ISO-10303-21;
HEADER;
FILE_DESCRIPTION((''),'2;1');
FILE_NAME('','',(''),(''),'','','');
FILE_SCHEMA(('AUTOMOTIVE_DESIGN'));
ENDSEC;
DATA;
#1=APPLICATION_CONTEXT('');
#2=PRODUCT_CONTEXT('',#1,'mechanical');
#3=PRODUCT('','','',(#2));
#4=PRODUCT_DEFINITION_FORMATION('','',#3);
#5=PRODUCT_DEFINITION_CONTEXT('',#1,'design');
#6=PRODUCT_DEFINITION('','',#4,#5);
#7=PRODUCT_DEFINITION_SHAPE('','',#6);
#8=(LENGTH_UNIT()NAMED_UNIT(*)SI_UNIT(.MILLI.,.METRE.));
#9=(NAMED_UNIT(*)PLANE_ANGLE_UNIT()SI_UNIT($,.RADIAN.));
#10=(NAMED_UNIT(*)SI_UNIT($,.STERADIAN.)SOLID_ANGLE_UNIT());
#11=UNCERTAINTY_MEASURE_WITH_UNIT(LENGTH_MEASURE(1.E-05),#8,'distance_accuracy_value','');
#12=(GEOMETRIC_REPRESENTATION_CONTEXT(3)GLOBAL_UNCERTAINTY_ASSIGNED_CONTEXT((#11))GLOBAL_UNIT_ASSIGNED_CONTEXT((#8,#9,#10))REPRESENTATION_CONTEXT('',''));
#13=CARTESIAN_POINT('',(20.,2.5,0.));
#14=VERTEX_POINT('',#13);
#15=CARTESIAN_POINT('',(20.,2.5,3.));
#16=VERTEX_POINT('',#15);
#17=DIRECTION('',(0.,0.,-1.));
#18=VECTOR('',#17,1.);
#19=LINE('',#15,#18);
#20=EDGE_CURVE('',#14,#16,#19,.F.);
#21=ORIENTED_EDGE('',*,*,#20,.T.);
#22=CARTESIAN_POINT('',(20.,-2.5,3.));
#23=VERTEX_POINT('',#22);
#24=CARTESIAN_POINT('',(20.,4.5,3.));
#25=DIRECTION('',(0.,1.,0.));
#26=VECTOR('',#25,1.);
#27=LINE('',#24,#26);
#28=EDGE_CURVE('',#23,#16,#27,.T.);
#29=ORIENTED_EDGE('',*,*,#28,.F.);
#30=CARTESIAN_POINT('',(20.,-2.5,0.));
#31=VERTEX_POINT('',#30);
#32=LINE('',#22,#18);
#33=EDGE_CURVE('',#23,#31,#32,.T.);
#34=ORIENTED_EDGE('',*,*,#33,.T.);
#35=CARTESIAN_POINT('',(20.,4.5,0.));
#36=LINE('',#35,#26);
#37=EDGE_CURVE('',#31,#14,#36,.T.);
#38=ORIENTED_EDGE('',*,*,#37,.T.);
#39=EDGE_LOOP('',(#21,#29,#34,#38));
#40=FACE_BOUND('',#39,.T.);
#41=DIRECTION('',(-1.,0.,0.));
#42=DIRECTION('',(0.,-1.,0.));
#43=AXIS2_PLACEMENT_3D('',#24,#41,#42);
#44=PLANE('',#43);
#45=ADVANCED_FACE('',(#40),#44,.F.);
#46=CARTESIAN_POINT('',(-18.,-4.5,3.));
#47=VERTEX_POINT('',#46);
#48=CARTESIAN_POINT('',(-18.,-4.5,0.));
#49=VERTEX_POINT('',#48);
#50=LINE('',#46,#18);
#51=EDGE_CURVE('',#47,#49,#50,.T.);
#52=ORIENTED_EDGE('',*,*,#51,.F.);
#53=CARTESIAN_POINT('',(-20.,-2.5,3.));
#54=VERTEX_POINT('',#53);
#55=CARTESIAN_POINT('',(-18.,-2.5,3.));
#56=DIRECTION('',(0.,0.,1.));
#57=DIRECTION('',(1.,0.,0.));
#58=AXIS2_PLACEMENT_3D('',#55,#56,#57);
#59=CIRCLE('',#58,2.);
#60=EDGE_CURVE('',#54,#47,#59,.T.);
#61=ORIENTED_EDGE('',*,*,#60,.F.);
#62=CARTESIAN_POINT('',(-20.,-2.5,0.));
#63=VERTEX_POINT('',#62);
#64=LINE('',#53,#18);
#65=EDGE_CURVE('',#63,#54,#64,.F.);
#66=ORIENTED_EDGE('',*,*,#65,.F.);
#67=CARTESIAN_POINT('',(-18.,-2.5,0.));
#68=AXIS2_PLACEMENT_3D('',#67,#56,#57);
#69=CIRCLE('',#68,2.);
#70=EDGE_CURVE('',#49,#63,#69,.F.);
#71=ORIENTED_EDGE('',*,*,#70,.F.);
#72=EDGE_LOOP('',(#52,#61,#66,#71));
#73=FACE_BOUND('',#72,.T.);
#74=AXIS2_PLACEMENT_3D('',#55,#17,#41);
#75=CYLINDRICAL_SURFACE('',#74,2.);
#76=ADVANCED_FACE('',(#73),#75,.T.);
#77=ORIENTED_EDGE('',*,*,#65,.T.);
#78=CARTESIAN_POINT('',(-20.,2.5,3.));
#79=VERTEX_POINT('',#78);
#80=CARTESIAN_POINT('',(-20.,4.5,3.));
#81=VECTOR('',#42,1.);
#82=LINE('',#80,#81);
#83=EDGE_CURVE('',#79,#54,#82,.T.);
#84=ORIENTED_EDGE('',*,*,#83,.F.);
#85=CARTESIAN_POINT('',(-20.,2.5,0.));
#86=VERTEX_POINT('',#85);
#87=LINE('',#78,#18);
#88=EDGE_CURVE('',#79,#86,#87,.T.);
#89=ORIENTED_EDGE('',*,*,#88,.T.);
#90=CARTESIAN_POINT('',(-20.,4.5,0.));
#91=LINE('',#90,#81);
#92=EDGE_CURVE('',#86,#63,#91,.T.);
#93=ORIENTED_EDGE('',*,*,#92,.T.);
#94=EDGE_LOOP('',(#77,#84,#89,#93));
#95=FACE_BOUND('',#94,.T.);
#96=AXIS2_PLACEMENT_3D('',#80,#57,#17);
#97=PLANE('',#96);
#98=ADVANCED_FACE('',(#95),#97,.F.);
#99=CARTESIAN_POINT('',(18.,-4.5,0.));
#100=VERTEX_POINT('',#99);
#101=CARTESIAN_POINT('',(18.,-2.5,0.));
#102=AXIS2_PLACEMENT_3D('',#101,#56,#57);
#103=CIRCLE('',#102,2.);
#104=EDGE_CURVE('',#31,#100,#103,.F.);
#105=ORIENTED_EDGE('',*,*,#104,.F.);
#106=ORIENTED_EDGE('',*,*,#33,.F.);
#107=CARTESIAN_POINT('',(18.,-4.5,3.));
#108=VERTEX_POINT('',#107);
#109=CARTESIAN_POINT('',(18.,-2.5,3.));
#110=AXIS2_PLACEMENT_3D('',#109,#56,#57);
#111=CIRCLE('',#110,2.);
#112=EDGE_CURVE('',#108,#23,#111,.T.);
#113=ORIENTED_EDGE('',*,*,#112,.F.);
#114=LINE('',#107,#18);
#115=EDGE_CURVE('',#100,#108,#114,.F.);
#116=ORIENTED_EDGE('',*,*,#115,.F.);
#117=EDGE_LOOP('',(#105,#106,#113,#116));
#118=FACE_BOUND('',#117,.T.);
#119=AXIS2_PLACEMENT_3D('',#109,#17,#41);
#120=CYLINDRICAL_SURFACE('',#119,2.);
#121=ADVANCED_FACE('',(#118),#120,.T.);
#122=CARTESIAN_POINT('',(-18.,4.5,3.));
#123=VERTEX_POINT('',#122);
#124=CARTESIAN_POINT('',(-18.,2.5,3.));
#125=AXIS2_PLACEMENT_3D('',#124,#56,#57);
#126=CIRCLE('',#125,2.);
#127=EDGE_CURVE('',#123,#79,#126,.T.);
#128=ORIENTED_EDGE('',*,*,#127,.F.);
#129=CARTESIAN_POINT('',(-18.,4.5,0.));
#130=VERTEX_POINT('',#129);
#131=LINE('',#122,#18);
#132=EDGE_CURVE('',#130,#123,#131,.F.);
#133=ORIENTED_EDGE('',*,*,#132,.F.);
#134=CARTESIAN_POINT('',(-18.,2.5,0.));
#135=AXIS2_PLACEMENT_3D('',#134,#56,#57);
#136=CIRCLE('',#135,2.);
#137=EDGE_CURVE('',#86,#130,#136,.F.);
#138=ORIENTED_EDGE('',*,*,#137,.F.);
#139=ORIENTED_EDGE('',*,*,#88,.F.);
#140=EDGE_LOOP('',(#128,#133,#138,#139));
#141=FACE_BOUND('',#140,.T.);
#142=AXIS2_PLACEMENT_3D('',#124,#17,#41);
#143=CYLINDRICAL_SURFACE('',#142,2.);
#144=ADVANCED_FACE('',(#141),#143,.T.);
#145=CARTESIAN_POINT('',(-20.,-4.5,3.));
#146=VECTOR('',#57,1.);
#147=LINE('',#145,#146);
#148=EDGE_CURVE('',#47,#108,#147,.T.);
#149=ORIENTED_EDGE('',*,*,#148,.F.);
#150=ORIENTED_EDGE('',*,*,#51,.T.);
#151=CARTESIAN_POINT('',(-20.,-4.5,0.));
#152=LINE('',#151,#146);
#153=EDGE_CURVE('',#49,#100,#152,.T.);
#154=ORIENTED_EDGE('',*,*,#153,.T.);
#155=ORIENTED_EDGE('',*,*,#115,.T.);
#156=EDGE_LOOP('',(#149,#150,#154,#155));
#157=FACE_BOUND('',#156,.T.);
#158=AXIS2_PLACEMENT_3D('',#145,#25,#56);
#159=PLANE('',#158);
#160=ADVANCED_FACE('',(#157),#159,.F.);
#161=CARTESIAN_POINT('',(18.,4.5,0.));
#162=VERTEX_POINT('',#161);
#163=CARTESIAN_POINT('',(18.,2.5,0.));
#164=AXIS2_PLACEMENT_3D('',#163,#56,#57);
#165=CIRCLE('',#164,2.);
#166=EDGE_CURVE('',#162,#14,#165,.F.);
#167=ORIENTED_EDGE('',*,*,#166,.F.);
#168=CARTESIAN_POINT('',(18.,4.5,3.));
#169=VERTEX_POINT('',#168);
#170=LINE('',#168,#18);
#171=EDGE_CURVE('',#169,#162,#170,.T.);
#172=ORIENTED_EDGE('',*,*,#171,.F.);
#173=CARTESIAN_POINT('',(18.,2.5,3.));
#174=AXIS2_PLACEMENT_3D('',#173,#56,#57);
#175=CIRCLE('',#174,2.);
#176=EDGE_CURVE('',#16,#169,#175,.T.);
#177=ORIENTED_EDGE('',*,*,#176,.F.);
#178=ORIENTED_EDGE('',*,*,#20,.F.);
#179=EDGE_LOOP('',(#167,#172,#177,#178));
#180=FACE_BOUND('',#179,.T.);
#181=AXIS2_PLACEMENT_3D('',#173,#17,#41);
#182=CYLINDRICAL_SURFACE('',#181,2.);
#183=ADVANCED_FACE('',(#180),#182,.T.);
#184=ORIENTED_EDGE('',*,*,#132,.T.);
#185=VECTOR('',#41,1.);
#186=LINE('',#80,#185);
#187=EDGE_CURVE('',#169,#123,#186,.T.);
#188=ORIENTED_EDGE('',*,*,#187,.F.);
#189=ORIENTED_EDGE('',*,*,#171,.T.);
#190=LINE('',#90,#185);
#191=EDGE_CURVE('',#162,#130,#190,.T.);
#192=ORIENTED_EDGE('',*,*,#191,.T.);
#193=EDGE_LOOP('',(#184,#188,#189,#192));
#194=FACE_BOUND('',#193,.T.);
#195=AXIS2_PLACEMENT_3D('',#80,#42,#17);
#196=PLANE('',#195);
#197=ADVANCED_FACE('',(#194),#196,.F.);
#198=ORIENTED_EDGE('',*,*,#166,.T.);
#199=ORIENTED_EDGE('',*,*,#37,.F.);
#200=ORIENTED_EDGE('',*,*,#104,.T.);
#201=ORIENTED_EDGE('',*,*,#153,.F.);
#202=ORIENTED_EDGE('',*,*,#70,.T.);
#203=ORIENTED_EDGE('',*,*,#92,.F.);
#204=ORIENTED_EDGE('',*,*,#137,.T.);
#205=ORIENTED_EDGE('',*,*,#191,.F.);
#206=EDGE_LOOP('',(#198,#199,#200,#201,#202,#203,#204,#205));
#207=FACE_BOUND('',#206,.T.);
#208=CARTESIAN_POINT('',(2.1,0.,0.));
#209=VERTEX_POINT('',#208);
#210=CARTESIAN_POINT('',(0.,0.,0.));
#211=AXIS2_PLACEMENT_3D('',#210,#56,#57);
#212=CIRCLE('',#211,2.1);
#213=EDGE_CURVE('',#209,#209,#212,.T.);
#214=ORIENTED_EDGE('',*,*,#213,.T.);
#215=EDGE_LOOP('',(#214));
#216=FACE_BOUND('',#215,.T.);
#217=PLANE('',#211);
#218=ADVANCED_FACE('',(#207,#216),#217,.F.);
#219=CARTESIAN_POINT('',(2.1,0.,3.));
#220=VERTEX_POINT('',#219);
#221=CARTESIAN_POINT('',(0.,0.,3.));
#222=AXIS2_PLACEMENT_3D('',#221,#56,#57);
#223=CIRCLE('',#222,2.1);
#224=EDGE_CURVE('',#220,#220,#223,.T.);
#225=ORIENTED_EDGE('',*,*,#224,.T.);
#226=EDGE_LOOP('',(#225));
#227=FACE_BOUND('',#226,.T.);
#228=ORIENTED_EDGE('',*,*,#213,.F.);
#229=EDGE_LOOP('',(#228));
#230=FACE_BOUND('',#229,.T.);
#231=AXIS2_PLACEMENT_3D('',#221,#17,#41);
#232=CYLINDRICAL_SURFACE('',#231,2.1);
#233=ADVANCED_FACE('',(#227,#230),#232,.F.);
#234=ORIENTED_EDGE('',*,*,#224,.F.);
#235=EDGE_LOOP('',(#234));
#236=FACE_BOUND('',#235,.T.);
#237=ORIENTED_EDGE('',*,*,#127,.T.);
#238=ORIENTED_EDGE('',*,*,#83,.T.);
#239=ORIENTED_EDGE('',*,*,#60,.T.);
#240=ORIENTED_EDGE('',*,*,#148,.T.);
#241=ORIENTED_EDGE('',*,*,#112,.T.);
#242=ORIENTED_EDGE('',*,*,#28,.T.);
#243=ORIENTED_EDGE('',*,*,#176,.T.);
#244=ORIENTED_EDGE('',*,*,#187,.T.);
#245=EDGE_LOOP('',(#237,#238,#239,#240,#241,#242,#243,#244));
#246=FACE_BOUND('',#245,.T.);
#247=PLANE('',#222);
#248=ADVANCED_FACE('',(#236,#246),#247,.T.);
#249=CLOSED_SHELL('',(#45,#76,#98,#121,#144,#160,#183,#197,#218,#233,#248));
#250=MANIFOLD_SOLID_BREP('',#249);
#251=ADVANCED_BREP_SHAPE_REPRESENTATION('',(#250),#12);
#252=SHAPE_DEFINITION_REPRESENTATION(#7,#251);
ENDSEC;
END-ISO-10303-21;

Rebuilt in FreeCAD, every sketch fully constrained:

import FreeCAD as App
import Part
import Sketcher


def edges_at(feature, points):
    """Names of the edges that pass closest to the given points."""
    edges = feature.Shape.Edges
    near = lambda p: min(range(len(edges)), key=lambda i: edges[i].distToShape(Part.Vertex(*p))[0])
    return sorted({f"Edge{near(p) + 1}" for p in points})

doc = App.newDocument("Part")
body = doc.addObject("PartDesign::Body", "Body")

sketch1 = body.newObject("Sketcher::SketchObject", "Sketch")
sketch1.AttachmentSupport = (doc.getObject("XY_Plane"), [""])
sketch1.MapMode = "FlatFace"
sketch1.addGeometry([
    Part.LineSegment(App.Vector(-20, 4.5, 0), App.Vector(-20, -4.5, 0)),
    Part.LineSegment(App.Vector(-20, -4.5, 0), App.Vector(20, -4.5, 0)),
    Part.LineSegment(App.Vector(20, -4.5, 0), App.Vector(20, 4.5, 0)),
    Part.LineSegment(App.Vector(20, 4.5, 0), App.Vector(-20, 4.5, 0)),
    Part.Circle(App.Vector(0, 0, 0), App.Vector(0, 0, 1), 2.1),
], False)
sketch1.addConstraint([
    Sketcher.Constraint("Coincident", 0, 2, 1, 1),
    Sketcher.Constraint("Coincident", 1, 2, 2, 1),
    Sketcher.Constraint("Coincident", 2, 2, 3, 1),
    Sketcher.Constraint("Coincident", 3, 2, 0, 1),
    Sketcher.Constraint("Vertical", 0),
    Sketcher.Constraint("Horizontal", 1),
    Sketcher.Constraint("Vertical", 2),
    Sketcher.Constraint("Horizontal", 3),
    Sketcher.Constraint("Coincident", 4, 3, -1, 1),
    Sketcher.Constraint("Symmetric", 0, 2, 2, 2, -1, 1),
    Sketcher.Constraint("Diameter", 4, 4.2),
    Sketcher.Constraint("DistanceX", 1, 1, 1, 2, 40.0),
    Sketcher.Constraint("DistanceY", 0, 2, 0, 1, 9.0),
])
pad1 = body.newObject("PartDesign::Pad", "Pad")
pad1.Profile = sketch1
pad1.Length = 3
doc.recompute()

fillet = body.newObject("PartDesign::Fillet", "Fillet")
fillet.Base = (pad1, edges_at(pad1, [
    (-20, 4.5, 1.5),
    (20, 4.5, 1.5),
    (20, -4.5, 1.5),
    (-20, -4.5, 1.5),
]))
fillet.Radius = 2

doc.recompute()
